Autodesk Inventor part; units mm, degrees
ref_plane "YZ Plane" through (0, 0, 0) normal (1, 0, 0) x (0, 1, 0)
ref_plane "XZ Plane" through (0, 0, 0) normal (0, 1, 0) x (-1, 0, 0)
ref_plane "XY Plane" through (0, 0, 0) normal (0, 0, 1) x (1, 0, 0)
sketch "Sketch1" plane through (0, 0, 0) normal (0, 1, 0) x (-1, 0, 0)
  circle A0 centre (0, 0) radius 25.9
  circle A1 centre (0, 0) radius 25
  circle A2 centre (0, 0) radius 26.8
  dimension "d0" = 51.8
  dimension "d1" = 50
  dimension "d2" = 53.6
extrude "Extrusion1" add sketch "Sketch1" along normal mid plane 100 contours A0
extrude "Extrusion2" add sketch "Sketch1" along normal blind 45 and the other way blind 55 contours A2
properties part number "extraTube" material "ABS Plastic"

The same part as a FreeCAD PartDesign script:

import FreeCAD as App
import Part
import Sketcher
Q = App.Units.Quantity

doc = App.newDocument("Part")
body = doc.addObject("PartDesign::Body", "Body")

# Sketch on XZ plane
sketch1 = body.newObject("Sketcher::SketchObject", "Sketch")
sketch1.AttachmentSupport = (doc.getObject("XZ_Plane"), [""])
sketch1.MapMode = "FlatFace"
sketch1.addGeometry(Part.Circle(App.Vector(0, 0, 0), App.Vector(0, 0, 1), 25.9), False)
sketch1.addGeometry(Part.Circle(App.Vector(0, 0, 0), App.Vector(0, 0, 1), 25), False)
sketch1.addConstraint(Sketcher.Constraint("Coincident", 0, 3, -1, 1))
sketch1.addConstraint(Sketcher.Constraint("Coincident", 1, 3, -1, 1))
sketch1.addConstraint(Sketcher.Constraint("Diameter", 1, Q("50 mm")))
sketch1.addConstraint(Sketcher.Constraint("Diameter", 0, Q("51.8 mm")))
pad1 = body.newObject("PartDesign::Pad", "Pad")
pad1.Profile = sketch1
pad1.Length = 100
pad1.Midplane = True

# Sketch on XZ plane
sketch2 = body.newObject("Sketcher::SketchObject", "Sketch001")
sketch2.AttachmentSupport = (doc.getObject("XZ_Plane"), [""])
sketch2.MapMode = "FlatFace"
sketch2.addGeometry(Part.Circle(App.Vector(0, 0, 0), App.Vector(0, 0, 1), 26.8), False)
sketch2.addGeometry(Part.Circle(App.Vector(0, 0, 0), App.Vector(0, 0, 1), 25.9), False)
sketch2.addConstraint(Sketcher.Constraint("Coincident", 0, 3, -1, 1))
sketch2.addConstraint(Sketcher.Constraint("Coincident", 1, 3, -1, 1))
sketch2.addConstraint(Sketcher.Constraint("Diameter", 0, Q("53.6 mm")))
sketch2.addConstraint(Sketcher.Constraint("Diameter", 1, Q("51.8 mm")))
pad2 = body.newObject("PartDesign::Pad", "Pad001")
pad2.Profile = sketch2
pad2.Type = "TwoLengths"
pad2.Length = 45
pad2.Length2 = 55
pad2.Reversed = True

doc.recompute()
